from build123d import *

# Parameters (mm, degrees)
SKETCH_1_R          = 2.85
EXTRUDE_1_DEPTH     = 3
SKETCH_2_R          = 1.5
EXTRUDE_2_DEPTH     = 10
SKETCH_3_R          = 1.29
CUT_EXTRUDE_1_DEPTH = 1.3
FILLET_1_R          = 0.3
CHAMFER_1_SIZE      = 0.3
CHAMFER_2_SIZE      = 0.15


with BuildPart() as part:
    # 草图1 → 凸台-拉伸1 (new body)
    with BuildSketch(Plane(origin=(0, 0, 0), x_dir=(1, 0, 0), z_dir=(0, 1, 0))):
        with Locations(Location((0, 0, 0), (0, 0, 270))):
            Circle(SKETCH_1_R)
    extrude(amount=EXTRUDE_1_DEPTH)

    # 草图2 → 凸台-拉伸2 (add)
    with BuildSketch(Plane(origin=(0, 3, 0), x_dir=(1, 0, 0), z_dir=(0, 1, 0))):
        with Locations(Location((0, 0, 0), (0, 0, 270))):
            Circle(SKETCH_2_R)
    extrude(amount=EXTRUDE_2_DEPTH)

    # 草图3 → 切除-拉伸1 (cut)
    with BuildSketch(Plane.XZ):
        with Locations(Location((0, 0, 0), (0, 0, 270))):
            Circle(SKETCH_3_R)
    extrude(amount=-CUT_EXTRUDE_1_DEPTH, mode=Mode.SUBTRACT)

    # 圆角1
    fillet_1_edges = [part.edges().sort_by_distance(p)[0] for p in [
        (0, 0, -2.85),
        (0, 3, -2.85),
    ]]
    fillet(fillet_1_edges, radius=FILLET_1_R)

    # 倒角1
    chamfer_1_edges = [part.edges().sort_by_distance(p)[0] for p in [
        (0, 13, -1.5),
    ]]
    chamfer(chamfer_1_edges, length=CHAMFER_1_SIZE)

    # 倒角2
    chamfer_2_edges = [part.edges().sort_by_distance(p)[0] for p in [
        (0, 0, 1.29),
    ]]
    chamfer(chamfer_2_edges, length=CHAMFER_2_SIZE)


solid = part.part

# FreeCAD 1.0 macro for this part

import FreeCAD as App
import Part
import Sketcher

V = App.Vector


def edges_at(feature, points):
    """Names of the edges that pass closest to the given points."""
    edges = feature.Shape.Edges
    near = lambda p: min(range(len(edges)), key=lambda i: edges[i].distToShape(Part.Vertex(*p))[0])
    return sorted({f"Edge{near(p) + 1}" for p in points})

doc = App.newDocument("Part")
body = doc.addObject("PartDesign::Body", "Body")

# Sketch on XZ plane
sketch1 = body.newObject("Sketcher::SketchObject", "Sketch")
sketch1.AttachmentSupport = (doc.getObject("XZ_Plane"), [""])
sketch1.MapMode = "FlatFace"
sketch1.addGeometry(Part.Circle(V(0, 0, 0), V(0, 0, 1), 2.85), False)
sketch1.addConstraint([
    Sketcher.Constraint("Coincident", 0, 3, -1, 1),
    Sketcher.Constraint("Diameter", 0, 5.7),
])
pad1 = body.newObject("PartDesign::Pad", "Pad")
pad1.Profile = sketch1
pad1.Length = 3
pad1.Reversed = True

# Sketch on XZ plane
sketch2 = body.newObject("Sketcher::SketchObject", "Sketch001")
sketch2.AttachmentSupport = (doc.getObject("XZ_Plane"), [""])
sketch2.MapMode = "FlatFace"
sketch2.AttachmentOffset = App.Placement(V(0, 0, -3), App.Rotation())
sketch2.addGeometry(Part.Circle(V(0, 0, 0), V(0, 0, 1), 1.5), False)
sketch2.addConstraint([
    Sketcher.Constraint("Coincident", 0, 3, -1, 1),
    Sketcher.Constraint("Diameter", 0, 3.0),
])
pad2 = body.newObject("PartDesign::Pad", "Pad001")
pad2.Profile = sketch2
pad2.Length = 10
pad2.Reversed = True

# Sketch on XZ plane
sketch3 = body.newObject("Sketcher::SketchObject", "Sketch002")
sketch3.AttachmentSupport = (doc.getObject("XZ_Plane"), [""])
sketch3.MapMode = "FlatFace"
sketch3.addGeometry(Part.Circle(V(0, 0, 0), V(0, 0, 1), 1.29), False)
sketch3.addConstraint([
    Sketcher.Constraint("Coincident", 0, 3, -1, 1),
    Sketcher.Constraint("Diameter", 0, 2.58),
])
pocket1 = body.newObject("PartDesign::Pocket", "Pocket")
pocket1.Profile = sketch3
pocket1.Length = 1.3
doc.recompute()

fillet = body.newObject("PartDesign::Fillet", "Fillet")
fillet.Base = (pocket1, edges_at(pocket1, [(0, 0, -2.85), (0, 3, -2.85)]))
fillet.Radius = 0.3
doc.recompute()

chamfer = body.newObject("PartDesign::Chamfer", "Chamfer")
chamfer.Base = (fillet, edges_at(fillet, [(0, 13, -1.5)]))
chamfer.Size = 0.3
doc.recompute()

chamfer2 = body.newObject("PartDesign::Chamfer", "Chamfer001")
chamfer2.Base = (chamfer, edges_at(chamfer, [(0, 0, 1.29)]))
chamfer2.Size = 0.15

doc.recompute()
